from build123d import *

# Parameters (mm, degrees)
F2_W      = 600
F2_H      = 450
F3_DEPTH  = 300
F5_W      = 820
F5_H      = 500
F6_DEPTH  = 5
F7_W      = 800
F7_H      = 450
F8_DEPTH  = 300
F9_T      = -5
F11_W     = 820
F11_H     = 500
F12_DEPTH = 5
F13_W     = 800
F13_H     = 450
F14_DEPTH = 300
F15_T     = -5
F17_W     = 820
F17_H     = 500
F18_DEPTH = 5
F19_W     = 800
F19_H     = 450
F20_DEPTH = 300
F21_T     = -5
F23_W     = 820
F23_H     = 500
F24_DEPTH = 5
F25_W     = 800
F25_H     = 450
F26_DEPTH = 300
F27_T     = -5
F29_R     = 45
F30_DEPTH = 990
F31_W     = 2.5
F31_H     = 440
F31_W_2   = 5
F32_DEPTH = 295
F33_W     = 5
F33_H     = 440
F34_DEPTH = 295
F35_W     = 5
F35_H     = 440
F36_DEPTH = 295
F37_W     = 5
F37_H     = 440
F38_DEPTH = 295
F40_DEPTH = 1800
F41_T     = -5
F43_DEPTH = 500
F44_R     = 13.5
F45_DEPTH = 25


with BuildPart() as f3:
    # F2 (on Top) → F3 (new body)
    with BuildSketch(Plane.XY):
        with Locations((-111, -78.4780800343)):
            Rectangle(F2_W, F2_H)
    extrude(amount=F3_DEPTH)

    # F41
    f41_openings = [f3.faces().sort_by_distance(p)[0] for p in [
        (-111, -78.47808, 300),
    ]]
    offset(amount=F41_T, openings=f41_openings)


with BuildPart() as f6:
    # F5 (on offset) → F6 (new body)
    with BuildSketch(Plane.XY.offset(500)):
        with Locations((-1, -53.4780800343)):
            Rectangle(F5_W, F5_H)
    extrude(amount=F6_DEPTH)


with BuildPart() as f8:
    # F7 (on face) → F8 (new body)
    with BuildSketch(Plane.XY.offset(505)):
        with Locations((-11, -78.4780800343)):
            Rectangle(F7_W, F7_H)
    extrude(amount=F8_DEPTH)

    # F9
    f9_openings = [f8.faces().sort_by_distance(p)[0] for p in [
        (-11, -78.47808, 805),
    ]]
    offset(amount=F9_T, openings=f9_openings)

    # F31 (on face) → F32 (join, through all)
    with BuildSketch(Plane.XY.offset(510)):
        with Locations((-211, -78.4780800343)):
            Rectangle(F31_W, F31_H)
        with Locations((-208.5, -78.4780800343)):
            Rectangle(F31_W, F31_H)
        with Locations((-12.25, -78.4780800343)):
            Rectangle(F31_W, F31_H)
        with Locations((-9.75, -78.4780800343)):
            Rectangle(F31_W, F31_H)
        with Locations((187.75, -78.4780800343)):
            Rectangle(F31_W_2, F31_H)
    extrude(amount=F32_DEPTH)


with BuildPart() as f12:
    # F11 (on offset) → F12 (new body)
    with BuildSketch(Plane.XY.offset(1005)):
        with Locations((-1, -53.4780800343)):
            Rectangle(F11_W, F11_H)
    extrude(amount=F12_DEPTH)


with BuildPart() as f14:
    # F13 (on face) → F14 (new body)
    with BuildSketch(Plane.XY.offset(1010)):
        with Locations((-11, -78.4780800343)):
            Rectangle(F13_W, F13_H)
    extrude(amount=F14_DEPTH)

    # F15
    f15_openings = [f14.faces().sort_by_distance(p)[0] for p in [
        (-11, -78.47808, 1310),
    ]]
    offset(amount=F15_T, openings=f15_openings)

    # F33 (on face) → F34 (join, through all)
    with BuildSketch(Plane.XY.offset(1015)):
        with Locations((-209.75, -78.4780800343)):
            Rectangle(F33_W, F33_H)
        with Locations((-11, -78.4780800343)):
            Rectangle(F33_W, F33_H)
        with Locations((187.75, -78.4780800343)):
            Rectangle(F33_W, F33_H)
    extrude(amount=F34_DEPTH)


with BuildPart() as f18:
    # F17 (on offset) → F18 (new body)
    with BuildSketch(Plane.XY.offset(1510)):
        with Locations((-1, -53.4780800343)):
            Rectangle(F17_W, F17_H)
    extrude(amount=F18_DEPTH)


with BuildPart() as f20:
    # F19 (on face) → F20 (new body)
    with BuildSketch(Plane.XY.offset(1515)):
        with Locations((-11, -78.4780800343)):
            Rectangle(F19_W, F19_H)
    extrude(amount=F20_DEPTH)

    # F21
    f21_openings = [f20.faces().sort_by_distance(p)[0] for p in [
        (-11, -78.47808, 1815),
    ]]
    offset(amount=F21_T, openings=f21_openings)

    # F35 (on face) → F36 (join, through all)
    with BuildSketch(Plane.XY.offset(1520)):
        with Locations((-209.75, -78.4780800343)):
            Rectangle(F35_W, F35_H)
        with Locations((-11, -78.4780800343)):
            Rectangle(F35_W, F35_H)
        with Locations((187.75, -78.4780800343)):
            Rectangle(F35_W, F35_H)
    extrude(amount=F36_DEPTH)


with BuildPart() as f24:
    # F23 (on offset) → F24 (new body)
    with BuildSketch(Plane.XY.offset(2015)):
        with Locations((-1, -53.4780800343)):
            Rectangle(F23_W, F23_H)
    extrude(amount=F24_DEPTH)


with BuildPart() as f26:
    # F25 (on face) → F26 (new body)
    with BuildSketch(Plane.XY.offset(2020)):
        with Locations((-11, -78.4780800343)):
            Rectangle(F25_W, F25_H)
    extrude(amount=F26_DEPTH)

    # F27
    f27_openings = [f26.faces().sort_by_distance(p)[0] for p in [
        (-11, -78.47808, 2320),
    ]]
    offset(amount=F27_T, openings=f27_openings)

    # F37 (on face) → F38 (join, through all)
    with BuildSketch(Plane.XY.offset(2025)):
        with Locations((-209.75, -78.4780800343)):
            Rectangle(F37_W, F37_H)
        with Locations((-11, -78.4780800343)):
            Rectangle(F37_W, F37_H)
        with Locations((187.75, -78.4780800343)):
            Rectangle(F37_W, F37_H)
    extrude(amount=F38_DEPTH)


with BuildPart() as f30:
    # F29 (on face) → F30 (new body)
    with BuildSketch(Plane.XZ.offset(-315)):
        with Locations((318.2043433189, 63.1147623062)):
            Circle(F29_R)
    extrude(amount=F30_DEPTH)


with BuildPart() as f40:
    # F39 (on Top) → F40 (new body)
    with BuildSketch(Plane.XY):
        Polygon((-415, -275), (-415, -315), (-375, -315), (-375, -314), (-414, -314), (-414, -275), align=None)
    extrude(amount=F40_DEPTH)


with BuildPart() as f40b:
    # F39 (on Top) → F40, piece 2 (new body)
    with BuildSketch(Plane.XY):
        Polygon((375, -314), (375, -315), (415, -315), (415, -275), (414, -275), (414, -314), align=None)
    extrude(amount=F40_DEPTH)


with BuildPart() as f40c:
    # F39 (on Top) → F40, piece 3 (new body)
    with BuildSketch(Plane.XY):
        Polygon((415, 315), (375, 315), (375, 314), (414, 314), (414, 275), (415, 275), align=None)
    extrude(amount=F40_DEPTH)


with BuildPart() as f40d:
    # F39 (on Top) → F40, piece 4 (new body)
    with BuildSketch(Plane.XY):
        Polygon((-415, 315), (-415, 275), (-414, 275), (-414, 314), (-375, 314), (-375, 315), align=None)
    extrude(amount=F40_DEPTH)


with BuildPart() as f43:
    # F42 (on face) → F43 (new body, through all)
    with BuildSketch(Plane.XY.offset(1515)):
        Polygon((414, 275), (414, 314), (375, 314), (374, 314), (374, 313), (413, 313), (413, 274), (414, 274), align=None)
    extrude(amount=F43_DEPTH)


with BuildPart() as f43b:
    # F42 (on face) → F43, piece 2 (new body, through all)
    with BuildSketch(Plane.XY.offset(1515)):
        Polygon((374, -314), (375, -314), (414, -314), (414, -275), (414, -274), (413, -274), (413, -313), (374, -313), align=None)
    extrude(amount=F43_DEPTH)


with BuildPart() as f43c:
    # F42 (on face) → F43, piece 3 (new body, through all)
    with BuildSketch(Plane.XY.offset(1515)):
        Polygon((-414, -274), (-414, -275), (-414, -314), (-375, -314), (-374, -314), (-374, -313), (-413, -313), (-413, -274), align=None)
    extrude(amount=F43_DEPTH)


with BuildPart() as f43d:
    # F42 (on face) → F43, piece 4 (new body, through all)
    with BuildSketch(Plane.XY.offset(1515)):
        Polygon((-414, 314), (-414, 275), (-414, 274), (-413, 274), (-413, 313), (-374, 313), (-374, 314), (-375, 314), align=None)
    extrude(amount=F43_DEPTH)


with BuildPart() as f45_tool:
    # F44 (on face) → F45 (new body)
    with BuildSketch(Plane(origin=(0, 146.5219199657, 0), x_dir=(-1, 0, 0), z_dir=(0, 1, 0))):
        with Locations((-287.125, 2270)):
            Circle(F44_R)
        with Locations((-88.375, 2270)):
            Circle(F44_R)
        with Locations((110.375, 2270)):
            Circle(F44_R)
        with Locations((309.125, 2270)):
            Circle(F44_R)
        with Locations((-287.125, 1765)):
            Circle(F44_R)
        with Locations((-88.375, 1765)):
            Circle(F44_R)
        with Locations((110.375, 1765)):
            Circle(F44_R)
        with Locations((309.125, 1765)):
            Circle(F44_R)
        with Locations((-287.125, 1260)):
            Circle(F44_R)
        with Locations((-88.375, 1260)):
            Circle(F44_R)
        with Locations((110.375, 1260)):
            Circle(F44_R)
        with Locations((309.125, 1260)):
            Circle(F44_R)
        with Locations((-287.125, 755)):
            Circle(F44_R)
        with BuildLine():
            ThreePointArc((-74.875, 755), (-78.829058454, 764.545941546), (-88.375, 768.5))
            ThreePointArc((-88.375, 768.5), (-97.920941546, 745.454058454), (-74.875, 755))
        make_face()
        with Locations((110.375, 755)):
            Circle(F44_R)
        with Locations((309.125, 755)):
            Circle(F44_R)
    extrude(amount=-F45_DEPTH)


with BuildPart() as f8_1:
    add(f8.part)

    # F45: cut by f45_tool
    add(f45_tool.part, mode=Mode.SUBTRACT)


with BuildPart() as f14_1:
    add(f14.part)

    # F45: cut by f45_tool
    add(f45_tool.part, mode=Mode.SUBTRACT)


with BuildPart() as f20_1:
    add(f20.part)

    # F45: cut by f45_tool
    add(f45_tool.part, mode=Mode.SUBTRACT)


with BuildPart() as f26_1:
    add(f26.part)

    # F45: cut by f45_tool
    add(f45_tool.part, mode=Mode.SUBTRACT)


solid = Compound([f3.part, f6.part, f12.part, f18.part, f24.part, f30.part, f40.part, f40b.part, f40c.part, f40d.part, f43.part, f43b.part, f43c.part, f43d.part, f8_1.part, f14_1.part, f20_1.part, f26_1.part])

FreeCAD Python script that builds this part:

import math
import FreeCAD as App
import Part
import Sketcher
from FreeCAD import Vector
Q = App.Units.Quantity


def faces_at(feature, points):
    """Names of the faces that lie closest to the given points."""
    faces = feature.Shape.Faces
    near = lambda p: min(range(len(faces)), key=lambda i: faces[i].distToShape(Part.Vertex(*p))[0])
    return sorted({f"Face{near(p) + 1}" for p in points})


def add_polygon(sketch, points):
    """Adds a closed chain of lines whose ends are joined by coincident constraints."""
    first, n = sketch.GeometryCount, len(points)
    for a, b in zip(points, points[1:] + points[:1]):
        sketch.addGeometry(Part.LineSegment(App.Vector(*a, 0), App.Vector(*b, 0)), False)
    for i in range(n):
        sketch.addConstraint(Sketcher.Constraint("Coincident", first + i, 2, first + (i + 1) % n, 1))

doc = App.newDocument("Part")
body = doc.addObject("PartDesign::Body", "Body")

sketch1 = body.newObject("Sketcher::SketchObject", "Sketch")
sketch1.AttachmentSupport = (doc.getObject("XY_Plane"), [""])
sketch1.MapMode = "FlatFace"
add_polygon(sketch1, [(-411, 147), (-411, -303), (189, -303), (189, 147)])
sketch1.addConstraint([
    Sketcher.Constraint("Vertical", 0),
    Sketcher.Constraint("Horizontal", 1),
    Sketcher.Constraint("Vertical", 2),
    Sketcher.Constraint("Horizontal", 3),
    Sketcher.Constraint("DistanceX", 1, 1, 1, 2, Q("600 mm")),
    Sketcher.Constraint("DistanceY", 0, 2, 0, 1, Q("450 mm")),
    Sketcher.Constraint("DistanceX", 0, 2, -1, 1, Q("411 mm")),
    Sketcher.Constraint("DistanceY", 0, 2, -1, 1, Q("303.47808 mm")),
])
pad1 = body.newObject("PartDesign::Pad", "Pad")
pad1.Profile = sketch1
pad1.Length = 300
doc.recompute()

thickness = body.newObject("PartDesign::Thickness", "Thickness")
thickness.Base = (pad1, faces_at(pad1, [(-111, -78.478, 300)]))
thickness.Value = 5
thickness.Reversed = True
thickness.Join = "Arc"
body2 = doc.addObject("PartDesign::Body", "Body001")

sketch2 = body2.newObject("Sketcher::SketchObject", "Sketch001")
sketch2.AttachmentSupport = (doc.getObject("XY_Plane001"), [""])
sketch2.MapMode = "FlatFace"
sketch2.AttachmentOffset = App.Placement(Vector(0, 0, 500), App.Rotation())
add_polygon(sketch2, [(-411, 197), (-411, -303), (409, -303), (409, 197)])
sketch2.addConstraint([
    Sketcher.Constraint("Vertical", 0),
    Sketcher.Constraint("Horizontal", 1),
    Sketcher.Constraint("Vertical", 2),
    Sketcher.Constraint("Horizontal", 3),
    Sketcher.Constraint("DistanceX", 1, 1, 1, 2, Q("820 mm")),
    Sketcher.Constraint("DistanceY", 0, 2, 0, 1, Q("500 mm")),
    Sketcher.Constraint("DistanceX", 0, 2, -1, 1, Q("411 mm")),
    Sketcher.Constraint("DistanceY", 0, 2, -1, 1, Q("303.47808 mm")),
])
pad2 = body2.newObject("PartDesign::Pad", "Pad001")
pad2.Profile = sketch2
pad2.Length = 5
body3 = doc.addObject("PartDesign::Body", "Body002")

sketch3 = body3.newObject("Sketcher::SketchObject", "Sketch002")
sketch3.AttachmentSupport = (doc.getObject("XY_Plane002"), [""])
sketch3.MapMode = "FlatFace"
sketch3.AttachmentOffset = App.Placement(Vector(0, 0, 505), App.Rotation())
add_polygon(sketch3, [(-411, 147), (-411, -303), (389, -303), (389, 147)])
sketch3.addConstraint([
    Sketcher.Constraint("Vertical", 0),
    Sketcher.Constraint("Horizontal", 1),
    Sketcher.Constraint("Vertical", 2),
    Sketcher.Constraint("Horizontal", 3),
    Sketcher.Constraint("DistanceX", 1, 1, 1, 2, Q("800 mm")),
    Sketcher.Constraint("DistanceY", 0, 2, 0, 1, Q("450 mm")),
    Sketcher.Constraint("DistanceX", 0, 2, -1, 1, Q("411 mm")),
    Sketcher.Constraint("DistanceY", 0, 2, -1, 1, Q("303.47808 mm")),
])
pad3 = body3.newObject("PartDesign::Pad", "Pad002")
pad3.Profile = sketch3
pad3.Length = 300
doc.recompute()

thickness2 = body3.newObject("PartDesign::Thickness", "Thickness001")
thickness2.Base = (pad3, faces_at(pad3, [(-11, -78.478, 805)]))
thickness2.Value = 5
thickness2.Reversed = True
thickness2.Join = "Arc"

sketch4 = body3.newObject("Sketcher::SketchObject", "Sketch003")
sketch4.AttachmentSupport = (doc.getObject("XY_Plane002"), [""])
sketch4.MapMode = "FlatFace"
sketch4.AttachmentOffset = App.Placement(Vector(0, 0, 510), App.Rotation())
add_polygon(sketch4, [(-212, 142), (-212, -298), (-207, -298), (-207, 142)])
add_polygon(sketch4, [(-14, 142), (-14, -298), (-8, -298), (-8, 142)])
add_polygon(sketch4, [(185, 142), (185, -298), (190, -298), (190, 142)])
sketch4.addConstraint([
    Sketcher.Constraint("Vertical", 0),
    Sketcher.Constraint("Horizontal", 1),
    Sketcher.Constraint("Vertical", 2),
    Sketcher.Constraint("Horizontal", 3),
    Sketcher.Constraint("Vertical", 4),
    Sketcher.Constraint("Horizontal", 5),
    Sketcher.Constraint("Vertical", 6),
    Sketcher.Constraint("Horizontal", 7),
    Sketcher.Constraint("Vertical", 8),
    Sketcher.Constraint("Horizontal", 9),
    Sketcher.Constraint("Vertical", 10),
    Sketcher.Constraint("Horizontal", 11),
    Sketcher.Constraint("Horizontal", 1, 2, 4, 2),
    Sketcher.Constraint("Horizontal", 3, 2, 6, 2),
    Sketcher.Constraint("Horizontal", 5, 2, 8, 2),
    Sketcher.Constraint("Horizontal", 7, 2, 10, 2),
    Sketcher.Constraint("Equal", 3, 5),
    Sketcher.Constraint("Equal", 7, 9),
    Sketcher.Constraint("DistanceX", 1, 1, 1, 2, Q("5 mm")),
    Sketcher.Constraint("DistanceY", 0, 2, 0, 1, Q("440 mm")),
    Sketcher.Constraint("DistanceX", 4, 2, -1, 1, Q("13.5 mm")),
    Sketcher.Constraint("DistanceX", 1, 2, 8, 2, Q("392.5 mm")),
    Sketcher.Constraint("DistanceX", 0, 2, -1, 1, Q("212.25 mm")),
    Sketcher.Constraint("DistanceY", 0, 2, -1, 1, Q("298.47808 mm")),
])
pad4 = body3.newObject("PartDesign::Pad", "Pad003")
pad4.Profile = sketch4
pad4.Length = 295
body4 = doc.addObject("PartDesign::Body", "Body003")

sketch5 = body4.newObject("Sketcher::SketchObject", "Sketch004")
sketch5.AttachmentSupport = (doc.getObject("XY_Plane003"), [""])
sketch5.MapMode = "FlatFace"
sketch5.AttachmentOffset = App.Placement(Vector(0, 0, 1005), App.Rotation())
add_polygon(sketch5, [(-411, 197), (-411, -303), (409, -303), (409, 197)])
sketch5.addConstraint([
    Sketcher.Constraint("Vertical", 0),
    Sketcher.Constraint("Horizontal", 1),
    Sketcher.Constraint("Vertical", 2),
    Sketcher.Constraint("Horizontal", 3),
    Sketcher.Constraint("DistanceX", 1, 1, 1, 2, Q("820 mm")),
    Sketcher.Constraint("DistanceY", 0, 2, 0, 1, Q("500 mm")),
    Sketcher.Constraint("DistanceX", 0, 2, -1, 1, Q("411 mm")),
    Sketcher.Constraint("DistanceY", 0, 2, -1, 1, Q("303.47808 mm")),
])
pad5 = body4.newObject("PartDesign::Pad", "Pad004")
pad5.Profile = sketch5
pad5.Length = 5
body5 = doc.addObject("PartDesign::Body", "Body004")

sketch6 = body5.newObject("Sketcher::SketchObject", "Sketch005")
sketch6.AttachmentSupport = (doc.getObject("XY_Plane004"), [""])
sketch6.MapMode = "FlatFace"
sketch6.AttachmentOffset = App.Placement(Vector(0, 0, 1010), App.Rotation())
add_polygon(sketch6, [(-411, 147), (-411, -303), (389, -303), (389, 147)])
sketch6.addConstraint([
    Sketcher.Constraint("Vertical", 0),
    Sketcher.Constraint("Horizontal", 1),
    Sketcher.Constraint("Vertical", 2),
    Sketcher.Constraint("Horizontal", 3),
    Sketcher.Constraint("DistanceX", 1, 1, 1, 2, Q("800 mm")),
    Sketcher.Constraint("DistanceY", 0, 2, 0, 1, Q("450 mm")),
    Sketcher.Constraint("DistanceX", 0, 2, -1, 1, Q("411 mm")),
    Sketcher.Constraint("DistanceY", 0, 2, -1, 1, Q("303.47808 mm")),
])
pad6 = body5.newObject("PartDesign::Pad", "Pad005")
pad6.Profile = sketch6
pad6.Length = 300
doc.recompute()

thickness3 = body5.newObject("PartDesign::Thickness", "Thickness002")
thickness3.Base = (pad6, faces_at(pad6, [(-11, -78.478, 1310)]))
thickness3.Value = 5
thickness3.Reversed = True
thickness3.Join = "Arc"

sketch7 = body5.newObject("Sketcher::SketchObject", "Sketch006")
sketch7.AttachmentSupport = (doc.getObject("XY_Plane004"), [""])
sketch7.MapMode = "FlatFace"
sketch7.AttachmentOffset = App.Placement(Vector(0, 0, 1015), App.Rotation())
add_polygon(sketch7, [(-212, 142), (-212, -298), (-207, -298), (-207, 142)])
add_polygon(sketch7, [(-14, 142), (-14, -298), (-8, -298), (-8, 142)])
add_polygon(sketch7, [(185, 142), (185, -298), (190, -298), (190, 142)])
sketch7.addConstraint([
    Sketcher.Constraint("Vertical", 0),
    Sketcher.Constraint("Horizontal", 1),
    Sketcher.Constraint("Vertical", 2),
    Sketcher.Constraint("Horizontal", 3),
    Sketcher.Constraint("Vertical", 4),
    Sketcher.Constraint("Horizontal", 5),
    Sketcher.Constraint("Vertical", 6),
    Sketcher.Constraint("Horizontal", 7),
    Sketcher.Constraint("Vertical", 8),
    Sketcher.Constraint("Horizontal", 9),
    Sketcher.Constraint("Vertical", 10),
    Sketcher.Constraint("Horizontal", 11),
    Sketcher.Constraint("Horizontal", 1, 2, 4, 2),
    Sketcher.Constraint("Horizontal", 3, 2, 6, 2),
    Sketcher.Constraint("Horizontal", 5, 2, 8, 2),
    Sketcher.Constraint("Horizontal", 7, 2, 10, 2),
    Sketcher.Constraint("Equal", 3, 5),
    Sketcher.Constraint("Equal", 7, 9),
    Sketcher.Constraint("DistanceX", 1, 1, 1, 2, Q("5 mm")),
    Sketcher.Constraint("DistanceY", 0, 2, 0, 1, Q("440 mm")),
    Sketcher.Constraint("DistanceX", 4, 2, -1, 1, Q("13.5 mm")),
    Sketcher.Constraint("DistanceX", 1, 2, 8, 2, Q("392.5 mm")),
    Sketcher.Constraint("DistanceX", 0, 2, -1, 1, Q("212.25 mm")),
    Sketcher.Constraint("DistanceY", 0, 2, -1, 1, Q("298.47808 mm")),
])
pad7 = body5.newObject("PartDesign::Pad", "Pad006")
pad7.Profile = sketch7
pad7.Length = 295
body6 = doc.addObject("PartDesign::Body", "Body005")

sketch8 = body6.newObject("Sketcher::SketchObject", "Sketch007")
sketch8.AttachmentSupport = (doc.getObject("XY_Plane005"), [""])
sketch8.MapMode = "FlatFace"
sketch8.AttachmentOffset = App.Placement(Vector(0, 0, 1510), App.Rotation())
add_polygon(sketch8, [(-411, 197), (-411, -303), (409, -303), (409, 197)])
sketch8.addConstraint([
    Sketcher.Constraint("Vertical", 0),
    Sketcher.Constraint("Horizontal", 1),
    Sketcher.Constraint("Vertical", 2),
    Sketcher.Constraint("Horizontal", 3),
    Sketcher.Constraint("DistanceX", 1, 1, 1, 2, Q("820 mm")),
    Sketcher.Constraint("DistanceY", 0, 2, 0, 1, Q("500 mm")),
    Sketcher.Constraint("DistanceX", 0, 2, -1, 1, Q("411 mm")),
    Sketcher.Constraint("DistanceY", 0, 2, -1, 1, Q("303.47808 mm")),
])
pad8 = body6.newObject("PartDesign::Pad", "Pad007")
pad8.Profile = sketch8
pad8.Length = 5
body7 = doc.addObject("PartDesign::Body", "Body006")

sketch9 = body7.newObject("Sketcher::SketchObject", "Sketch008")
sketch9.AttachmentSupport = (doc.getObject("XY_Plane006"), [""])
sketch9.MapMode = "FlatFace"
sketch9.AttachmentOffset = App.Placement(Vector(0, 0, 1515), App.Rotation())
add_polygon(sketch9, [(-411, 147), (-411, -303), (389, -303), (389, 147)])
sketch9.addConstraint([
    Sketcher.Constraint("Vertical", 0),
    Sketcher.Constraint("Horizontal", 1),
    Sketcher.Constraint("Vertical", 2),
    Sketcher.Constraint("Horizontal", 3),
    Sketcher.Constraint("DistanceX", 1, 1, 1, 2, Q("800 mm")),
    Sketcher.Constraint("DistanceY", 0, 2, 0, 1, Q("450 mm")),
    Sketcher.Constraint("DistanceX", 0, 2, -1, 1, Q("411 mm")),
    Sketcher.Constraint("DistanceY", 0, 2, -1, 1, Q("303.47808 mm")),
])
pad9 = body7.newObject("PartDesign::Pad", "Pad008")
pad9.Profile = sketch9
pad9.Length = 300
doc.recompute()

thickness4 = body7.newObject("PartDesign::Thickness", "Thickness003")
thickness4.Base = (pad9, faces_at(pad9, [(-11, -78.478, 1815)]))
thickness4.Value = 5
thickness4.Reversed = True
thickness4.Join = "Arc"

sketch10 = body7.newObject("Sketcher::SketchObject", "Sketch009")
sketch10.AttachmentSupport = (doc.getObject("XY_Plane006"), [""])
sketch10.MapMode = "FlatFace"
sketch10.AttachmentOffset = App.Placement(Vector(0, 0, 1520), App.Rotation())
add_polygon(sketch10, [(-212, 142), (-212, -298), (-207, -298), (-207, 142)])
add_polygon(sketch10, [(-14, 142), (-14, -298), (-8, -298), (-8, 142)])
add_polygon(sketch10, [(185, 142), (185, -298), (190, -298), (190, 142)])
sketch10.addConstraint([
    Sketcher.Constraint("Vertical", 0),
    Sketcher.Constraint("Horizontal", 1),
    Sketcher.Constraint("Vertical", 2),
    Sketcher.Constraint("Horizontal", 3),
    Sketcher.Constraint("Vertical", 4),
    Sketcher.Constraint("Horizontal", 5),
    Sketcher.Constraint("Vertical", 6),
    Sketcher.Constraint("Horizontal", 7),
    Sketcher.Constraint("Vertical", 8),
    Sketcher.Constraint("Horizontal", 9),
    Sketcher.Constraint("Vertical", 10),
    Sketcher.Constraint("Horizontal", 11),
    Sketcher.Constraint("Horizontal", 1, 2, 4, 2),
    Sketcher.Constraint("Horizontal", 3, 2, 6, 2),
    Sketcher.Constraint("Horizontal", 5, 2, 8, 2),
    Sketcher.Constraint("Horizontal", 7, 2, 10, 2),
    Sketcher.Constraint("Equal", 3, 5),
    Sketcher.Constraint("Equal", 7, 9),
    Sketcher.Constraint("DistanceX", 1, 1, 1, 2, Q("5 mm")),
    Sketcher.Constraint("DistanceY", 0, 2, 0, 1, Q("440 mm")),
    Sketcher.Constraint("DistanceX", 4, 2, -1, 1, Q("13.5 mm")),
    Sketcher.Constraint("DistanceX", 1, 2, 8, 2, Q("392.5 mm")),
    Sketcher.Constraint("DistanceX", 0, 2, -1, 1, Q("212.25 mm")),
    Sketcher.Constraint("DistanceY", 0, 2, -1, 1, Q("298.47808 mm")),
])
pad10 = body7.newObject("PartDesign::Pad", "Pad009")
pad10.Profile = sketch10
pad10.Length = 295
body8 = doc.addObject("PartDesign::Body", "Body007")

sketch11 = body8.newObject("Sketcher::SketchObject", "Sketch010")
sketch11.AttachmentSupport = (doc.getObject("XY_Plane007"), [""])
sketch11.MapMode = "FlatFace"
sketch11.AttachmentOffset = App.Placement(Vector(0, 0, 2015), App.Rotation())
add_polygon(sketch11, [(-411, 197), (-411, -303), (409, -303), (409, 197)])
sketch11.addConstraint([
    Sketcher.Constraint("Vertical", 0),
    Sketcher.Constraint("Horizontal", 1),
    Sketcher.Constraint("Vertical", 2),
    Sketcher.Constraint("Horizontal", 3),
    Sketcher.Constraint("DistanceX", 1, 1, 1, 2, Q("820 mm")),
    Sketcher.Constraint("DistanceY", 0, 2, 0, 1, Q("500 mm")),
    Sketcher.Constraint("DistanceX", 0, 2, -1, 1, Q("411 mm")),
    Sketcher.Constraint("DistanceY", 0, 2, -1, 1, Q("303.47808 mm")),
])
pad11 = body8.newObject("PartDesign::Pad", "Pad010")
pad11.Profile = sketch11
pad11.Length = 5
body9 = doc.addObject("PartDesign::Body", "Body008")

sketch12 = body9.newObject("Sketcher::SketchObject", "Sketch011")
sketch12.AttachmentSupport = (doc.getObject("XY_Plane008"), [""])
sketch12.MapMode = "FlatFace"
sketch12.AttachmentOffset = App.Placement(Vector(0, 0, 2020), App.Rotation())
add_polygon(sketch12, [(-411, 147), (-411, -303), (389, -303), (389, 147)])
sketch12.addConstraint([
    Sketcher.Constraint("Vertical", 0),
    Sketcher.Constraint("Horizontal", 1),
    Sketcher.Constraint("Vertical", 2),
    Sketcher.Constraint("Horizontal", 3),
    Sketcher.Constraint("DistanceX", 1, 1, 1, 2, Q("800 mm")),
    Sketcher.Constraint("DistanceY", 0, 2, 0, 1, Q("450 mm")),
    Sketcher.Constraint("DistanceX", 0, 2, -1, 1, Q("411 mm")),
    Sketcher.Constraint("DistanceY", 0, 2, -1, 1, Q("303.47808 mm")),
])
pad12 = body9.newObject("PartDesign::Pad", "Pad011")
pad12.Profile = sketch12
pad12.Length = 300
doc.recompute()

thickness5 = body9.newObject("PartDesign::Thickness", "Thickness004")
thickness5.Base = (pad12, faces_at(pad12, [(-11, -78.478, 2320)]))
thickness5.Value = 5
thickness5.Reversed = True
thickness5.Join = "Arc"

sketch13 = body9.newObject("Sketcher::SketchObject", "Sketch012")
sketch13.AttachmentSupport = (doc.getObject("XY_Plane008"), [""])
sketch13.MapMode = "FlatFace"
sketch13.AttachmentOffset = App.Placement(Vector(0, 0, 2025), App.Rotation())
add_polygon(sketch13, [(-212, 142), (-212, -298), (-207, -298), (-207, 142)])
add_polygon(sketch13, [(-14, 142), (-14, -298), (-8, -298), (-8, 142)])
add_polygon(sketch13, [(185, 142), (185, -298), (190, -298), (190, 142)])
sketch13.addConstraint([
    Sketcher.Constraint("Vertical", 0),
    Sketcher.Constraint("Horizontal", 1),
    Sketcher.Constraint("Vertical", 2),
    Sketcher.Constraint("Horizontal", 3),
    Sketcher.Constraint("Vertical", 4),
    Sketcher.Constraint("Horizontal", 5),
    Sketcher.Constraint("Vertical", 6),
    Sketcher.Constraint("Horizontal", 7),
    Sketcher.Constraint("Vertical", 8),
    Sketcher.Constraint("Horizontal", 9),
    Sketcher.Constraint("Vertical", 10),
    Sketcher.Constraint("Horizontal", 11),
    Sketcher.Constraint("Horizontal", 1, 2, 4, 2),
    Sketcher.Constraint("Horizontal", 3, 2, 6, 2),
    Sketcher.Constraint("Horizontal", 5, 2, 8, 2),
    Sketcher.Constraint("Horizontal", 7, 2, 10, 2),
    Sketcher.Constraint("Equal", 3, 5),
    Sketcher.Constraint("Equal", 7, 9),
    Sketcher.Constraint("DistanceX", 1, 1, 1, 2, Q("5 mm")),
    Sketcher.Constraint("DistanceY", 0, 2, 0, 1, Q("440 mm")),
    Sketcher.Constraint("DistanceX", 4, 2, -1, 1, Q("13.5 mm")),
    Sketcher.Constraint("DistanceX", 1, 2, 8, 2, Q("392.5 mm")),
    Sketcher.Constraint("DistanceX", 0, 2, -1, 1, Q("212.25 mm")),
    Sketcher.Constraint("DistanceY", 0, 2, -1, 1, Q("298.47808 mm")),
])
pad13 = body9.newObject("PartDesign::Pad", "Pad012")
pad13.Profile = sketch13
pad13.Length = 295
body10 = doc.addObject("PartDesign::Body", "Body009")

sketch14 = body10.newObject("Sketcher::SketchObject", "Sketch013")
sketch14.AttachmentSupport = (doc.getObject("XZ_Plane009"), [""])
sketch14.MapMode = "FlatFace"
sketch14.AttachmentOffset = App.Placement(Vector(0, 0, -315), App.Rotation())
sketch14.addGeometry(Part.Circle(Vector(318, 63, 0), Vector(0, 0, 1), 45), False)
sketch14.addConstraint([
    Sketcher.Constraint("Diameter", 0, Q("90 mm")),
    Sketcher.Constraint("DistanceX", -1, 1, 0, 3, Q("318.204343 mm")),
    Sketcher.Constraint("DistanceY", -1, 1, 0, 3, Q("63.114762 mm")),
])
pad14 = body10.newObject("PartDesign::Pad", "Pad013")
pad14.Profile = sketch14
pad14.Length = 990
body11 = doc.addObject("PartDesign::Body", "Body010")

sketch15 = body11.newObject("Sketcher::SketchObject", "Sketch014")
sketch15.AttachmentSupport = (doc.getObject("XY_Plane010"), [""])
sketch15.MapMode = "FlatFace"
add_polygon(sketch15, [(-415, -275), (-415, -315), (-375, -315), (-375, -314), (-414, -314), (-414, -275)])
sketch15.addConstraint([
    Sketcher.Constraint("Vertical", 0),
    Sketcher.Constraint("Horizontal", 1),
    Sketcher.Constraint("Vertical", 2),
    Sketcher.Constraint("Horizontal", 3),
    Sketcher.Constraint("Vertical", 4),
    Sketcher.Constraint("Horizontal", 5),
    Sketcher.Constraint("Equal", 1, 0),
    Sketcher.Constraint("Equal", 5, 2),
    Sketcher.Constraint("DistanceX", 1, 1, 1, 2, Q("40 mm")),
    Sketcher.Constraint("DistanceX", 3, 2, 3, 1, Q("39 mm")),
    Sketcher.Constraint("DistanceX", 0, 2, -1, 1, Q("415 mm")),
    Sketcher.Constraint("DistanceY", 0, 2, -1, 1, Q("315 mm")),
])
pad15 = body11.newObject("PartDesign::Pad", "Pad014")
pad15.Profile = sketch15
pad15.Length = 1800
body12 = doc.addObject("PartDesign::Body", "Body011")

sketch16 = body12.newObject("Sketcher::SketchObject", "Sketch015")
sketch16.AttachmentSupport = (doc.getObject("XY_Plane011"), [""])
sketch16.MapMode = "FlatFace"
add_polygon(sketch16, [(375, -314), (375, -315), (415, -315), (415, -275), (414, -275), (414, -314)])
sketch16.addConstraint([
    Sketcher.Constraint("Vertical", 0),
    Sketcher.Constraint("Horizontal", 1),
    Sketcher.Constraint("Vertical", 2),
    Sketcher.Constraint("Horizontal", 3),
    Sketcher.Constraint("Vertical", 4),
    Sketcher.Constraint("Horizontal", 5),
    Sketcher.Constraint("Equal", 3, 0),
    Sketcher.Constraint("Equal", 1, 2),
    Sketcher.Constraint("DistanceX", 1, 1, 1, 2, Q("40 mm")),
    Sketcher.Constraint("DistanceX", 3, 2, 3, 1, Q("1 mm")),
    Sketcher.Constraint("DistanceX", -1, 1, 0, 2, Q("375 mm")),
    Sketcher.Constraint("DistanceY", 0, 2, -1, 1, Q("315 mm")),
])
pad16 = body12.newObject("PartDesign::Pad", "Pad015")
pad16.Profile = sketch16
pad16.Length = 1800
body13 = doc.addObject("PartDesign::Body", "Body012")

sketch17 = body13.newObject("Sketcher::SketchObject", "Sketch016")
sketch17.AttachmentSupport = (doc.getObject("XY_Plane012"), [""])
sketch17.MapMode = "FlatFace"
add_polygon(sketch17, [(415, 315), (375, 315), (375, 314), (414, 314), (414, 275), (415, 275)])
sketch17.addConstraint([
    Sketcher.Constraint("Horizontal", 0),
    Sketcher.Constraint("Vertical", 1),
    Sketcher.Constraint("Horizontal", 2),
    Sketcher.Constraint("Vertical", 3),
    Sketcher.Constraint("Horizontal", 4),
    Sketcher.Constraint("Vertical", 5),
    Sketcher.Constraint("Equal", 4, 1),
    Sketcher.Constraint("Equal", 2, 3),
    Sketcher.Constraint("DistanceX", 0, 2, 0, 1, Q("40 mm")),
    Sketcher.Constraint("DistanceX", 2, 1, 2, 2, Q("39 mm")),
    Sketcher.Constraint("DistanceX", -1, 1, 0, 2, Q("375 mm")),
    Sketcher.Constraint("DistanceY", -1, 1, 0, 2, Q("315 mm")),
])
pad17 = body13.newObject("PartDesign::Pad", "Pad016")
pad17.Profile = sketch17
pad17.Length = 1800
body14 = doc.addObject("PartDesign::Body", "Body013")

sketch18 = body14.newObject("Sketcher::SketchObject", "Sketch017")
sketch18.AttachmentSupport = (doc.getObject("XY_Plane013"), [""])
sketch18.MapMode = "FlatFace"
add_polygon(sketch18, [(-415, 315), (-415, 275), (-414, 275), (-414, 314), (-375, 314), (-375, 315)])
sketch18.addConstraint([
    Sketcher.Constraint("Vertical", 0),
    Sketcher.Constraint("Horizontal", 1),
    Sketcher.Constraint("Vertical", 2),
    Sketcher.Constraint("Horizontal", 3),
    Sketcher.Constraint("Vertical", 4),
    Sketcher.Constraint("Horizontal", 5),
    Sketcher.Constraint("Equal", 5, 0),
    Sketcher.Constraint("Equal", 3, 2),
    Sketcher.Constraint("DistanceX", 1, 1, 1, 2, Q("1 mm")),
    Sketcher.Constraint("DistanceX", 3, 1, 3, 2, Q("39 mm")),
    Sketcher.Constraint("DistanceX", 0, 2, -1, 1, Q("415 mm")),
    Sketcher.Constraint("DistanceY", -1, 1, 0, 2, Q("275 mm")),
])
pad18 = body14.newObject("PartDesign::Pad", "Pad017")
pad18.Profile = sketch18
pad18.Length = 1800
body15 = doc.addObject("PartDesign::Body", "Body014")

sketch19 = body15.newObject("Sketcher::SketchObject", "Sketch018")
sketch19.AttachmentSupport = (doc.getObject("XY_Plane014"), [""])
sketch19.MapMode = "FlatFace"
sketch19.AttachmentOffset = App.Placement(Vector(0, 0, 1515), App.Rotation())
add_polygon(sketch19, [(414, 314), (374, 314), (374, 313), (413, 313), (413, 274), (414, 274)])
sketch19.addConstraint([
    Sketcher.Constraint("Horizontal", 0),
    Sketcher.Constraint("Vertical", 1),
    Sketcher.Constraint("Horizontal", 2),
    Sketcher.Constraint("Vertical", 3),
    Sketcher.Constraint("Horizontal", 4),
    Sketcher.Constraint("Vertical", 5),
    Sketcher.Constraint("Equal", 4, 1),
    Sketcher.Constraint("Equal", 2, 3),
    Sketcher.Constraint("DistanceX", 0, 2, 0, 1, Q("40 mm")),
    Sketcher.Constraint("DistanceX", 2, 1, 2, 2, Q("39 mm")),
    Sketcher.Constraint("DistanceX", -1, 1, 0, 2, Q("374 mm")),
    Sketcher.Constraint("DistanceY", -1, 1, 0, 2, Q("314 mm")),
])
pad19 = body15.newObject("PartDesign::Pad", "Pad018")
pad19.Profile = sketch19
pad19.Length = 500
body16 = doc.addObject("PartDesign::Body", "Body015")

sketch20 = body16.newObject("Sketcher::SketchObject", "Sketch019")
sketch20.AttachmentSupport = (doc.getObject("XY_Plane015"), [""])
sketch20.MapMode = "FlatFace"
sketch20.AttachmentOffset = App.Placement(Vector(0, 0, 1515), App.Rotation())
add_polygon(sketch20, [(374, -314), (414, -314), (414, -274), (413, -274), (413, -313), (374, -313)])
sketch20.addConstraint([
    Sketcher.Constraint("Horizontal", 0),
    Sketcher.Constraint("Vertical", 1),
    Sketcher.Constraint("Horizontal", 2),
    Sketcher.Constraint("Vertical", 3),
    Sketcher.Constraint("Horizontal", 4),
    Sketcher.Constraint("Vertical", 5),
    Sketcher.Constraint("Equal", 0, 1),
    Sketcher.Constraint("Equal", 4, 3),
    Sketcher.Constraint("DistanceX", 0, 1, 0, 2, Q("40 mm")),
    Sketcher.Constraint("DistanceX", 2, 2, 2, 1, Q("1 mm")),
    Sketcher.Constraint("DistanceX", -1, 1, 0, 2, Q("414 mm")),
    Sketcher.Constraint("DistanceY", 0, 2, -1, 1, Q("314 mm")),
])
pad20 = body16.newObject("PartDesign::Pad", "Pad019")
pad20.Profile = sketch20
pad20.Length = 500
body17 = doc.addObject("PartDesign::Body", "Body016")

sketch21 = body17.newObject("Sketcher::SketchObject", "Sketch020")
sketch21.AttachmentSupport = (doc.getObject("XY_Plane016"), [""])
sketch21.MapMode = "FlatFace"
sketch21.AttachmentOffset = App.Placement(Vector(0, 0, 1515), App.Rotation())
add_polygon(sketch21, [(-414, -274), (-414, -314), (-374, -314), (-374, -313), (-413, -313), (-413, -274)])
sketch21.addConstraint([
    Sketcher.Constraint("Vertical", 0),
    Sketcher.Constraint("Horizontal", 1),
    Sketcher.Constraint("Vertical", 2),
    Sketcher.Constraint("Horizontal", 3),
    Sketcher.Constraint("Vertical", 4),
    Sketcher.Constraint("Horizontal", 5),
    Sketcher.Constraint("Equal", 1, 0),
    Sketcher.Constraint("Equal", 5, 2),
    Sketcher.Constraint("DistanceX", 1, 1, 1, 2, Q("40 mm")),
    Sketcher.Constraint("DistanceX", 3, 2, 3, 1, Q("39 mm")),
    Sketcher.Constraint("DistanceX", 0, 2, -1, 1, Q("414 mm")),
    Sketcher.Constraint("DistanceY", 0, 2, -1, 1, Q("314 mm")),
])
pad21 = body17.newObject("PartDesign::Pad", "Pad020")
pad21.Profile = sketch21
pad21.Length = 500
body18 = doc.addObject("PartDesign::Body", "Body017")

sketch22 = body18.newObject("Sketcher::SketchObject", "Sketch021")
sketch22.AttachmentSupport = (doc.getObject("XY_Plane017"), [""])
sketch22.MapMode = "FlatFace"
sketch22.AttachmentOffset = App.Placement(Vector(0, 0, 1515), App.Rotation())
add_polygon(sketch22, [(-414, 314), (-414, 274), (-413, 274), (-413, 313), (-374, 313), (-374, 314)])
sketch22.addConstraint([
    Sketcher.Constraint("Vertical", 0),
    Sketcher.Constraint("Horizontal", 1),
    Sketcher.Constraint("Vertical", 2),
    Sketcher.Constraint("Horizontal", 3),
    Sketcher.Constraint("Vertical", 4),
    Sketcher.Constraint("Horizontal", 5),
    Sketcher.Constraint("Equal", 5, 0),
    Sketcher.Constraint("Equal", 3, 2),
    Sketcher.Constraint("DistanceX", 1, 1, 1, 2, Q("1 mm")),
    Sketcher.Constraint("DistanceX", 3, 1, 3, 2, Q("39 mm")),
    Sketcher.Constraint("DistanceX", 0, 2, -1, 1, Q("414 mm")),
    Sketcher.Constraint("DistanceY", -1, 1, 0, 2, Q("274 mm")),
])
pad22 = body18.newObject("PartDesign::Pad", "Pad021")
pad22.Profile = sketch22
pad22.Length = 500
body19 = doc.addObject("PartDesign::Body", "Body018")
body19.AllowCompound = True

sketch23 = body19.newObject("Sketcher::SketchObject", "Sketch022")
sketch23.AttachmentSupport = (doc.getObject("XZ_Plane018"), [""])
sketch23.MapMode = "FlatFace"
sketch23.AttachmentOffset = App.Placement(Vector(0, 0, -146.52192), App.Rotation())
sketch23.addGeometry([
    Part.Circle(Vector(287, 2270, 0), Vector(0, 0, 1), 14),
    Part.Circle(Vector(88, 2270, 0), Vector(0, 0, 1), 14),
    Part.Circle(Vector(-110, 2270, 0), Vector(0, 0, 1), 14),
    Part.Circle(Vector(-309, 2270, 0), Vector(0, 0, 1), 14),
    Part.Circle(Vector(287, 1765, 0), Vector(0, 0, 1), 14),
    Part.Circle(Vector(88, 1765, 0), Vector(0, 0, 1), 14),
    Part.Circle(Vector(-110, 1765, 0), Vector(0, 0, 1), 14),
    Part.Circle(Vector(-309, 1765, 0), Vector(0, 0, 1), 14),
    Part.Circle(Vector(287, 1260, 0), Vector(0, 0, 1), 14),
    Part.Circle(Vector(88, 1260, 0), Vector(0, 0, 1), 14),
    Part.Circle(Vector(-110, 1260, 0), Vector(0, 0, 1), 14),
    Part.Circle(Vector(-309, 1260, 0), Vector(0, 0, 1), 14),
    Part.Circle(Vector(287, 755, 0), Vector(0, 0, 1), 14),
    Part.ArcOfCircle(Part.Circle(Vector(88, 755, 0), Vector(0, 0, 1), 14), math.radians(90), math.radians(180)),
    Part.ArcOfCircle(Part.Circle(Vector(88, 755, 0), Vector(0, 0, 1), 14), math.radians(180), math.radians(450)),
    Part.Circle(Vector(-110, 755, 0), Vector(0, 0, 1), 14),
    Part.Circle(Vector(-309, 755, 0), Vector(0, 0, 1), 14),
], False)
sketch23.addConstraint([
    Sketcher.Constraint("Tangent", 13, 1, 14, 2),
    Sketcher.Constraint("Coincident", 14, 1, 13, 2),
    Sketcher.Constraint("Equal", 0, 1),
    Sketcher.Constraint("Equal", 1, 2),
    Sketcher.Constraint("Equal", 2, 3),
    Sketcher.Constraint("Equal", 3, 4),
    Sketcher.Constraint("Equal", 4, 5),
    Sketcher.Constraint("Equal", 5, 6),
    Sketcher.Constraint("Equal", 6, 7),
    Sketcher.Constraint("Equal", 7, 8),
    Sketcher.Constraint("Equal", 8, 9),
    Sketcher.Constraint("Equal", 9, 10),
    Sketcher.Constraint("Equal", 10, 11),
    Sketcher.Constraint("Equal", 11, 12),
    Sketcher.Constraint("Equal", 12, 13),
    Sketcher.Constraint("Equal", 14, 15),
    Sketcher.Constraint("Equal", 15, 16),
    Sketcher.Constraint("Horizontal", 0, 3, 1, 3),
    Sketcher.Constraint("Horizontal", 1, 3, 2, 3),
    Sketcher.Constraint("Horizontal", 2, 3, 3, 3),
    Sketcher.Constraint("Horizontal", 4, 3, 5, 3),
    Sketcher.Constraint("Horizontal", 5, 3, 6, 3),
    Sketcher.Constraint("Horizontal", 6, 3, 7, 3),
    Sketcher.Constraint("Horizontal", 8, 3, 9, 3),
    Sketcher.Constraint("Horizontal", 9, 3, 10, 3),
    Sketcher.Constraint("Horizontal", 10, 3, 11, 3),
    Sketcher.Constraint("Horizontal", 12, 3, 13, 3),
    Sketcher.Constraint("Horizontal", 14, 3, 15, 3),
    Sketcher.Constraint("Horizontal", 15, 3, 16, 3),
    Sketcher.Constraint("Horizontal", 16, 3, 14, 1),
    Sketcher.Constraint("Vertical", 0, 3, 4, 3),
    Sketcher.Constraint("Vertical", 1, 3, 5, 3),
    Sketcher.Constraint("Vertical", 2, 3, 6, 3),
    Sketcher.Constraint("Vertical", 3, 3, 7, 3),
    Sketcher.Constraint("Vertical", 4, 3, 8, 3),
    Sketcher.Constraint("Vertical", 5, 3, 9, 3),
    Sketcher.Constraint("Vertical", 6, 3, 10, 3),
    Sketcher.Constraint("Vertical", 7, 3, 11, 3),
    Sketcher.Constraint("Vertical", 8, 3, 12, 3),
    Sketcher.Constraint("Vertical", 9, 3, 13, 3),
    Sketcher.Constraint("Vertical", 10, 3, 15, 3),
    Sketcher.Constraint("Vertical", 11, 3, 16, 3),
    Sketcher.Constraint("Vertical", 14, 3, 13, 1),
    Sketcher.Constraint("Diameter", 0, Q("27 mm")),
    Sketcher.Constraint("DistanceY", -1, 1, 0, 3, Q("2270 mm")),
    Sketcher.Constraint("DistanceY", -1, 1, 4, 3, Q("1765 mm")),
    Sketcher.Constraint("DistanceY", -1, 1, 8, 3, Q("1260 mm")),
    Sketcher.Constraint("DistanceY", -1, 1, 12, 3, Q("755 mm")),
    Sketcher.Constraint("DistanceX", 2, 3, 0, 3, Q("397.5 mm")),
    Sketcher.Constraint("DistanceX", 3, 3, 1, 3, Q("397.5 mm")),
    Sketcher.Constraint("DistanceX", 1, 3, 0, 3, Q("198.75 mm")),
    Sketcher.Constraint("DistanceX", -1, 1, 0, 3, Q("287.125 mm")),
])
pad23 = body19.newObject("PartDesign::Pad", "Pad022")
pad23.Profile = sketch23
pad23.Length = 25
doc.recompute()

body20 = doc.addObject("PartDesign::Body", "Body019")
body20.BaseFeature = body19
boolean = body3.newObject("PartDesign::Boolean", "Boolean")
boolean.Type = "Cut"
boolean.addObjects([body20])
doc.recompute()

body21 = doc.addObject("PartDesign::Body", "Body020")
body21.BaseFeature = body19
boolean2 = body5.newObject("PartDesign::Boolean", "Boolean001")
boolean2.Type = "Cut"
boolean2.addObjects([body21])
doc.recompute()

body22 = doc.addObject("PartDesign::Body", "Body021")
body22.BaseFeature = body19
boolean3 = body7.newObject("PartDesign::Boolean", "Boolean002")
boolean3.Type = "Cut"
boolean3.addObjects([body22])
doc.recompute()

boolean4 = body9.newObject("PartDesign::Boolean", "Boolean003")
boolean4.Type = "Cut"
boolean4.addObjects([body19])

doc.recompute()
